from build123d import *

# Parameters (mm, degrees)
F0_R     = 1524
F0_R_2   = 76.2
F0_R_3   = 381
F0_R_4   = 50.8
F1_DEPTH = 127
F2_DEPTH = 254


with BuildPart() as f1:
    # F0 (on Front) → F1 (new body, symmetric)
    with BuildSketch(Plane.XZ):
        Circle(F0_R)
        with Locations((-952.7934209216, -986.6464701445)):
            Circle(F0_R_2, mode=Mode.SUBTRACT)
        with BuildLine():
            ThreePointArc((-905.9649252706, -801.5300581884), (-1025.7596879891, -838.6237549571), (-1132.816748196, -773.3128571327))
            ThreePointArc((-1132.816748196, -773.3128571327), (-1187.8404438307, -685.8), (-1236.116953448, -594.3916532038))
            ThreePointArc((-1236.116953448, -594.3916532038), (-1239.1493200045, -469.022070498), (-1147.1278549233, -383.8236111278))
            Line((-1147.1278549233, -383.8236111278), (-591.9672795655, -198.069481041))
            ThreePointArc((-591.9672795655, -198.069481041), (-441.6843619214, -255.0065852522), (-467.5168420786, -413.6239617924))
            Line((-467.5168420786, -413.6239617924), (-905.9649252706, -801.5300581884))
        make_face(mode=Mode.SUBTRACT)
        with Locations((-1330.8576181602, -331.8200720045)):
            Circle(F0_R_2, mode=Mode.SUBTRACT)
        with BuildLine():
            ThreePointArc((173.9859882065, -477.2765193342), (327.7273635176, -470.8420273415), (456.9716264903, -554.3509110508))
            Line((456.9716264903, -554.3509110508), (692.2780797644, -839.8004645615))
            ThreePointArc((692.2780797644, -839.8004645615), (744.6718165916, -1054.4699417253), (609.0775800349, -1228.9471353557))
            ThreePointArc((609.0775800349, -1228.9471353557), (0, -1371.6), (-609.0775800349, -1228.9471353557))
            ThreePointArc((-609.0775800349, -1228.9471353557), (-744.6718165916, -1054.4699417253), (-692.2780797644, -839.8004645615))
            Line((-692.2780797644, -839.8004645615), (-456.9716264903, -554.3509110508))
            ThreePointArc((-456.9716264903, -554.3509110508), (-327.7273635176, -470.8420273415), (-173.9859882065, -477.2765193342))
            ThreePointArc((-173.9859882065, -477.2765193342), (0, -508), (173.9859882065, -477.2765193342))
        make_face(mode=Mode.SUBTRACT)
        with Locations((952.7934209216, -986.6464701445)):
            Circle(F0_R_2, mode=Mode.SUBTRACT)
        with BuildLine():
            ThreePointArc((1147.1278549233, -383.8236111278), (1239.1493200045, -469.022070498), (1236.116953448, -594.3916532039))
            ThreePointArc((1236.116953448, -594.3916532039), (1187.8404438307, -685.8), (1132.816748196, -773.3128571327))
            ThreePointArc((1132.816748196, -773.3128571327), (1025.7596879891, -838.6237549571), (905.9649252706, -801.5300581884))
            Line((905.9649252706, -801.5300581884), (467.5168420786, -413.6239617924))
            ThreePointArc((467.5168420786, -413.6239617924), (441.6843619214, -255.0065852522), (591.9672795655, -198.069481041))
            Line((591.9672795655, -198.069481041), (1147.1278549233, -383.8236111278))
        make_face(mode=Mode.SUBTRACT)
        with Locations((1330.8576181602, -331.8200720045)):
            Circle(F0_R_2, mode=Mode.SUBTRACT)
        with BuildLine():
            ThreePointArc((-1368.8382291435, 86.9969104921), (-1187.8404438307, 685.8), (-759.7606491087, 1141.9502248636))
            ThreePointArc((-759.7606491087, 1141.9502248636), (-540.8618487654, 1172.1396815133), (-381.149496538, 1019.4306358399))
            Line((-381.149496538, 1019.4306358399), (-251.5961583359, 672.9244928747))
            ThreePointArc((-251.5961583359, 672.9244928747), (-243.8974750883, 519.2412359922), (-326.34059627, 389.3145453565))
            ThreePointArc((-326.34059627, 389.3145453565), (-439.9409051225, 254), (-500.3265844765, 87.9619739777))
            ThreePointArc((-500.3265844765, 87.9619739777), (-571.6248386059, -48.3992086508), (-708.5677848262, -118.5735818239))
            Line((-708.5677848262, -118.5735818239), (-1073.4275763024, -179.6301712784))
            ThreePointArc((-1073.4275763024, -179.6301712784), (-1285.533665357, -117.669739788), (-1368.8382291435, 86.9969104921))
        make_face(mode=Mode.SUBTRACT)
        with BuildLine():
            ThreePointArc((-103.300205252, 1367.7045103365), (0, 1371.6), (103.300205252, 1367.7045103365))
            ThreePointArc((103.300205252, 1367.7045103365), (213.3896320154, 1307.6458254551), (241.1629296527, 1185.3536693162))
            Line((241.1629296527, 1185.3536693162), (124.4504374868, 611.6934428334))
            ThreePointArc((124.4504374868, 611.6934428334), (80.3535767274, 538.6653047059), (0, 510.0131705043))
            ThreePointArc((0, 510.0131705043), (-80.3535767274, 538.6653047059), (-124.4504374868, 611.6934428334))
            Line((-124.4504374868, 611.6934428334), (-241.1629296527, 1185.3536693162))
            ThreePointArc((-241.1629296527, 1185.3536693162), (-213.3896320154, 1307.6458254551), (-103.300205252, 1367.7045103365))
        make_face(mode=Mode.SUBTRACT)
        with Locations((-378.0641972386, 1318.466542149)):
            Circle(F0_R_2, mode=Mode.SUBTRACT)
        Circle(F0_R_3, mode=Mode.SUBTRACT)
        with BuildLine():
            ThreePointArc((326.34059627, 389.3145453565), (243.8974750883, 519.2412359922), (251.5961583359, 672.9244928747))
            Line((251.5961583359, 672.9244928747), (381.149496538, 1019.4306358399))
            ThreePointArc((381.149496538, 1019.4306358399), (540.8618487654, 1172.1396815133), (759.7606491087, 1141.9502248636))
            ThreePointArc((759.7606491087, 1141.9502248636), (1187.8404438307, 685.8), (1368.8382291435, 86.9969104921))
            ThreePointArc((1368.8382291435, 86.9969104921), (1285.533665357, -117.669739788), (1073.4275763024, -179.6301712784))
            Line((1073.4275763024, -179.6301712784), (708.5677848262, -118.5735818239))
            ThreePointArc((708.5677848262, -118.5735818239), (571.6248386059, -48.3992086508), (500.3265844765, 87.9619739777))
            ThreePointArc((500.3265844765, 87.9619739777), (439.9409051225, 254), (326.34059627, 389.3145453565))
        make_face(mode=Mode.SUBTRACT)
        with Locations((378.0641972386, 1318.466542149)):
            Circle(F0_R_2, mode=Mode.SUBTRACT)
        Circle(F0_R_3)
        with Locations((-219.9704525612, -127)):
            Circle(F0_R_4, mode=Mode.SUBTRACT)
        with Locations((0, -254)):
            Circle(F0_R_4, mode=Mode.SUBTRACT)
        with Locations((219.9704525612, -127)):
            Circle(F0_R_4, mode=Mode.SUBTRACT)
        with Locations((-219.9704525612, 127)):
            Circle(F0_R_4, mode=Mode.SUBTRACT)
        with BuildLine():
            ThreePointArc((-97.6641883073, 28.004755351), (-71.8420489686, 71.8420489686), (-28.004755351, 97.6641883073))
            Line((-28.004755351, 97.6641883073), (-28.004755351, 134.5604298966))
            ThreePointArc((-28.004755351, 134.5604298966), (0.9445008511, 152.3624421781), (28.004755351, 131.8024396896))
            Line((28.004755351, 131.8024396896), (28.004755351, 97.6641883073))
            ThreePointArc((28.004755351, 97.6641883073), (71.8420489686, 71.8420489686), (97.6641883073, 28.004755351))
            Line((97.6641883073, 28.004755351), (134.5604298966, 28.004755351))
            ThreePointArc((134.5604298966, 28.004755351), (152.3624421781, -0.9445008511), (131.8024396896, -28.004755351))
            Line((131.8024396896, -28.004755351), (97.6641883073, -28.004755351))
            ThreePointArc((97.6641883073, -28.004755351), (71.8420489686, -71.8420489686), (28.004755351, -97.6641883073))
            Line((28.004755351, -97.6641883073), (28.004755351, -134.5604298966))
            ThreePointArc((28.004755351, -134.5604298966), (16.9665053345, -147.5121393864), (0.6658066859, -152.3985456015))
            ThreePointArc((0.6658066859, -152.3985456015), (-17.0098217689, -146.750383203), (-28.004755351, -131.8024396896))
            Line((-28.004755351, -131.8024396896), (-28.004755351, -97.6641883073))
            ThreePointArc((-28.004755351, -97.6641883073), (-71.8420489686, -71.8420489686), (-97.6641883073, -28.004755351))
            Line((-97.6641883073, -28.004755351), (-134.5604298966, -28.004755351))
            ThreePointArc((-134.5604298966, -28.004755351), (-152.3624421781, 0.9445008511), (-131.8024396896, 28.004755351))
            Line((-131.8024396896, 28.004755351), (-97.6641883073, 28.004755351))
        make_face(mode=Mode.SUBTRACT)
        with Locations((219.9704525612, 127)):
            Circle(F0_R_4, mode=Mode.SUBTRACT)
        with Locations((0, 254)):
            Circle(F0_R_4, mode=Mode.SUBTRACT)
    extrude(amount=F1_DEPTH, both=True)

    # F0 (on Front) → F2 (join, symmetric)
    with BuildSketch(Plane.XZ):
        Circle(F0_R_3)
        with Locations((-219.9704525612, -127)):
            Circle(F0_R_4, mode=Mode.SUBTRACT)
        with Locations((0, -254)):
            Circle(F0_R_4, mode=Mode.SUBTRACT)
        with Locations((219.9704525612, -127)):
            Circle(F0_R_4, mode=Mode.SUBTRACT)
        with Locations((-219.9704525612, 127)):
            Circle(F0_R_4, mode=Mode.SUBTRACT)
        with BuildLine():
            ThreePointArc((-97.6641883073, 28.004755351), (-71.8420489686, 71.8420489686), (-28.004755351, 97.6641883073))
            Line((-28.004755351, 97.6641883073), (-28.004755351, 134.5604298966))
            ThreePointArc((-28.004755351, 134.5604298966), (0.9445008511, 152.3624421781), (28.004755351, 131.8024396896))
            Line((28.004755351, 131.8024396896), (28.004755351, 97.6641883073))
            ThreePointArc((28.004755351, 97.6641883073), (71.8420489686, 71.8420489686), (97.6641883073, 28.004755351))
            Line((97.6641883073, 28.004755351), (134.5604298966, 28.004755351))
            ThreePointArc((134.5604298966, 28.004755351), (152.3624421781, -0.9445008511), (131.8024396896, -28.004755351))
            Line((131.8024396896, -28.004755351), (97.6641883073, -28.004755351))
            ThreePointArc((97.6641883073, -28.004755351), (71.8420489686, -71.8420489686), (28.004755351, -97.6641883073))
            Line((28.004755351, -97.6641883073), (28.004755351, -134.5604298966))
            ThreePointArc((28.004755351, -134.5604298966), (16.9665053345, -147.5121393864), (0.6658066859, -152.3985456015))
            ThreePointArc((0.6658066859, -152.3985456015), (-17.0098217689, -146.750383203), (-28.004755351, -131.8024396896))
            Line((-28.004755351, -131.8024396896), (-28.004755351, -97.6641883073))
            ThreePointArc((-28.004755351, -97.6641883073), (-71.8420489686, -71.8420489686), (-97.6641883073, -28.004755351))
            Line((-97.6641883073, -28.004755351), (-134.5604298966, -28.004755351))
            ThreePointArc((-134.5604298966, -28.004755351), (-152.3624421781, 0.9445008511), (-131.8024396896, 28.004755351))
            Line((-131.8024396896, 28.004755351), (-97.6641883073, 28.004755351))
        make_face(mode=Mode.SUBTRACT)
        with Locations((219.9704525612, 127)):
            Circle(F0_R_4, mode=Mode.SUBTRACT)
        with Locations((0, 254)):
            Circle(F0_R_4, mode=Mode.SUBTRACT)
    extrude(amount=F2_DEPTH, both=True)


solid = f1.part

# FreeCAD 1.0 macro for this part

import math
import FreeCAD as App
import Part
import Sketcher
from FreeCAD import Vector
Q = App.Units.Quantity

doc = App.newDocument("Part")
body = doc.addObject("PartDesign::Body", "Body")

sketch1 = body.newObject("Sketcher::SketchObject", "Sketch")
sketch1.AttachmentSupport = (doc.getObject("XZ_Plane"), [""])
sketch1.MapMode = "FlatFace"
sketch1.addGeometry(Part.Circle(Vector(0, 0, 0), Vector(0, 0, 1), 1524), False)
sketch1.addGeometry(Part.Circle(Vector(-952.793421, -986.64647, 0), Vector(0, 0, 1), 76.2), False)
sketch1.addGeometry(Part.ArcOfCircle(Part.Circle(Vector(0, 0, 0), Vector(0, 0, 1), 508), math.radians(-110.028779), math.radians(-69.971221)), False)
sketch1.addGeometry(Part.ArcOfCircle(Part.Circle(Vector(260.978982, -715.914779, 0), Vector(0, 0, 1), 254), math.radians(39.5), math.radians(110.028779)), False)
sketch1.addGeometry(Part.LineSegment(Vector(456.971626, -554.350911, 0), Vector(692.27808, -839.800465, 0)), False)
sketch1.addGeometry(Part.ArcOfCircle(Part.Circle(Vector(496.285436, -1001.364333, 0), Vector(0, 0, 1), 254), math.radians(-63.636559), math.radians(39.5)), False)
sketch1.addGeometry(Part.ArcOfCircle(Part.Circle(Vector(0, 0, 0), Vector(0, 0, 1), 1371.6), math.radians(-116.363441), math.radians(-63.636559)), False)
sketch1.addGeometry(Part.ArcOfCircle(Part.Circle(Vector(-496.285436, -1001.364333, 0), Vector(0, 0, 1), 254), math.radians(140.5), math.radians(243.636559)), False)
sketch1.addGeometry(Part.LineSegment(Vector(-692.27808, -839.800465, 0), Vector(-456.971626, -554.350911, 0)), False)
sketch1.addGeometry(Part.ArcOfCircle(Part.Circle(Vector(-260.978982, -715.914779, 0), Vector(0, 0, 1), 254), math.radians(69.971221), math.radians(140.5)), False)
sketch1.addGeometry(Part.LineSegment(Vector(-467.516842, -413.623962, 0), Vector(-905.964925, -801.530058, 0)), False)
sketch1.addGeometry(Part.ArcOfCircle(Part.Circle(Vector(-1006.948221, -687.389206, 0), Vector(0, 0, 1), 152.4), math.radians(-145.680756), math.radians(-48.5)), False)
sketch1.addGeometry(Part.ArcOfCircle(Part.Circle(Vector(0, 0, 0), Vector(0, 0, 1), 1371.6), math.radians(-154.319244), math.radians(-145.680756)), False)
sketch1.addGeometry(Part.ArcOfCircle(Part.Circle(Vector(-1098.770625, -528.348136, 0), Vector(0, 0, 1), 152.4), math.radians(108.5), math.radians(205.680756)), False)
sketch1.addGeometry(Part.LineSegment(Vector(-1147.127855, -383.823611, 0), Vector(-591.96728, -198.069481, 0)), False)
sketch1.addGeometry(Part.ArcOfCircle(Part.Circle(Vector(-551.669588, -318.506585, 0), Vector(0, 0, 1), 127), math.radians(-48.5), math.radians(108.5)), False)
sketch1.addGeometry(Part.Circle(Vector(-1330.857618, -331.820072, 0), Vector(0, 0, 1), 76.2), False)
sketch1.addGeometry(Part.Circle(Vector(0, -254, 0), Vector(0, 0, 1), 50.8), False)
sketch1.addGeometry(Part.Circle(Vector(-219.970453, -127, 0), Vector(0, 0, 1), 50.8), False)
sketch1.addGeometry(Part.LineSegment(Vector(-131.80244, 28.004755, 0), Vector(-97.664188, 28.004755, 0)), False)
sketch1.addGeometry(Part.ArcOfCircle(Part.Circle(Vector(0, 0, 0), Vector(0, 0, 1), 101.6), math.radians(106), math.radians(164)), False)
sketch1.addGeometry(Part.LineSegment(Vector(-28.004755, 97.664188, 0), Vector(-28.004755, 134.56043, 0)), False)
sketch1.addGeometry(Part.ArcOfCircle(Part.Circle(Vector(-0.534433, 122.328113, 0), Vector(0, 0, 1), 30.070719), math.radians(18.364929), math.radians(155.996969)), False)
sketch1.addGeometry(Part.LineSegment(Vector(28.004755, 131.80244, 0), Vector(28.004755, 97.664188, 0)), False)
sketch1.addGeometry(Part.ArcOfCircle(Part.Circle(Vector(0, 0, 0), Vector(0, 0, 1), 101.6), math.radians(16), math.radians(74)), False)
sketch1.addGeometry(Part.LineSegment(Vector(97.664188, 28.004755, 0), Vector(134.56043, 28.004755, 0)), False)
sketch1.addGeometry(Part.ArcOfCircle(Part.Circle(Vector(122.328113, 0.534433, 0), Vector(0, 0, 1), 30.070719), math.radians(-71.635071), math.radians(65.996969)), False)
sketch1.addGeometry(Part.LineSegment(Vector(131.80244, -28.004755, 0), Vector(97.664188, -28.004755, 0)), False)
sketch1.addGeometry(Part.ArcOfCircle(Part.Circle(Vector(0, 0, 0), Vector(0, 0, 1), 101.6), math.radians(-74), math.radians(-16)), False)
sketch1.addGeometry(Part.LineSegment(Vector(28.004755, -97.664188, 0), Vector(28.004755, -134.56043, 0)), False)
sketch1.addGeometry(Part.ArcOfCircle(Part.Circle(Vector(0.534433, -122.328113, 0), Vector(0, 0, 1), 30.070719), math.radians(-161.635071), math.radians(-24.003031)), False)
sketch1.addGeometry(Part.LineSegment(Vector(-28.004755, -131.80244, 0), Vector(-28.004755, -97.664188, 0)), False)
sketch1.addGeometry(Part.ArcOfCircle(Part.Circle(Vector(0, 0, 0), Vector(0, 0, 1), 101.6), math.radians(-164), math.radians(-106)), False)
sketch1.addGeometry(Part.LineSegment(Vector(-97.664188, -28.004755, 0), Vector(-134.56043, -28.004755, 0)), False)
sketch1.addGeometry(Part.ArcOfCircle(Part.Circle(Vector(-122.328113, -0.534433, 0), Vector(0, 0, 1), 30.070719), math.radians(108.364929), math.radians(245.996969)), False)
sketch1.addGeometry(Part.Circle(Vector(952.793421, -986.64647, 0), Vector(0, 0, 1), 76.2), False)
sketch1.addGeometry(Part.Circle(Vector(219.970453, -127, 0), Vector(0, 0, 1), 50.8), False)
sketch1.addGeometry(Part.LineSegment(Vector(591.96728, -198.069481, 0), Vector(1147.127855, -383.823611, 0)), False)
sketch1.addGeometry(Part.ArcOfCircle(Part.Circle(Vector(1098.770625, -528.348136, 0), Vector(0, 0, 1), 152.4), math.radians(-25.680756), math.radians(71.5)), False)
sketch1.addGeometry(Part.ArcOfCircle(Part.Circle(Vector(0, 0, 0), Vector(0, 0, 1), 1371.6), math.radians(-34.319244), math.radians(-25.680756)), False)
sketch1.addGeometry(Part.ArcOfCircle(Part.Circle(Vector(1006.948221, -687.389206, 0), Vector(0, 0, 1), 152.4), math.radians(-131.5), math.radians(-34.319244)), False)
sketch1.addGeometry(Part.LineSegment(Vector(905.964925, -801.530058, 0), Vector(467.516842, -413.623962, 0)), False)
sketch1.addGeometry(Part.ArcOfCircle(Part.Circle(Vector(551.669588, -318.506585, 0), Vector(0, 0, 1), 127), math.radians(71.5), math.radians(228.5)), False)
sketch1.addGeometry(Part.Circle(Vector(1330.857618, -331.820072, 0), Vector(0, 0, 1), 76.2), False)
sketch1.addGeometry(Part.ArcOfCircle(Part.Circle(Vector(-1115.349668, 70.886372, 0), Vector(0, 0, 1), 254), math.radians(176.363441), math.radians(279.5)), False)
sketch1.addGeometry(Part.ArcOfCircle(Part.Circle(Vector(0, 0, 0), Vector(0, 0, 1), 1371.6), math.radians(123.636559), math.radians(176.363441)), False)
sketch1.addGeometry(Part.ArcOfCircle(Part.Circle(Vector(-619.064233, 930.477961, 0), Vector(0, 0, 1), 254), math.radians(20.5), math.radians(123.636559)), False)
sketch1.addGeometry(Part.LineSegment(Vector(-381.149497, 1019.430636, 0), Vector(-251.596158, 672.924493, 0)), False)
sketch1.addGeometry(Part.ArcOfCircle(Part.Circle(Vector(-489.510894, 583.971818, 0), Vector(0, 0, 1), 254), math.radians(-50.028779), math.radians(20.5)), False)
sketch1.addGeometry(Part.ArcOfCircle(Part.Circle(Vector(0, 0, 0), Vector(0, 0, 1), 508), math.radians(129.971221), math.radians(170.028779)), False)
sketch1.addGeometry(Part.ArcOfCircle(Part.Circle(Vector(-750.489877, 131.942961, 0), Vector(0, 0, 1), 254), math.radians(-80.5), math.radians(-9.971221)), False)
sketch1.addGeometry(Part.LineSegment(Vector(-708.567785, -118.573582, 0), Vector(-1073.427576, -179.630171, 0)), False)
sketch1.addGeometry(Part.Circle(Vector(-219.970453, 127, 0), Vector(0, 0, 1), 50.8), False)
sketch1.addGeometry(Part.Circle(Vector(0, 254, 0), Vector(0, 0, 1), 50.8), False)
sketch1.addGeometry(Part.ArcOfCircle(Part.Circle(Vector(-91.822405, 1215.737343, 0), Vector(0, 0, 1), 152.4), math.radians(94.319244), math.radians(191.5)), False)
sketch1.addGeometry(Part.ArcOfCircle(Part.Circle(Vector(0, 0, 0), Vector(0, 0, 1), 1371.6), math.radians(85.680756), math.radians(94.319244)), False)
sketch1.addGeometry(Part.ArcOfCircle(Part.Circle(Vector(91.822405, 1215.737343, 0), Vector(0, 0, 1), 152.4), math.radians(-11.5), math.radians(85.680756)), False)
sketch1.addGeometry(Part.LineSegment(Vector(241.16293, 1185.353669, 0), Vector(124.450437, 611.693443, 0)), False)
sketch1.addGeometry(Part.ArcOfCircle(Part.Circle(Vector(0, 637.013171, 0), Vector(0, 0, 1), 127), math.radians(-90), math.radians(-11.5)), False)
sketch1.addGeometry(Part.ArcOfCircle(Part.Circle(Vector(0, 637.013171, 0), Vector(0, 0, 1), 127), math.radians(-168.5), math.radians(-90)), False)
sketch1.addGeometry(Part.LineSegment(Vector(-124.450437, 611.693443, 0), Vector(-241.16293, 1185.353669, 0)), False)
sketch1.addGeometry(Part.Circle(Vector(-378.064197, 1318.466542, 0), Vector(0, 0, 1), 76.2), False)
sketch1.addGeometry(Part.Circle(Vector(219.970453, 127, 0), Vector(0, 0, 1), 50.8), False)
sketch1.addGeometry(Part.ArcOfCircle(Part.Circle(Vector(0, 0, 0), Vector(0, 0, 1), 508), math.radians(9.971221), math.radians(50.028779)), False)
sketch1.addGeometry(Part.ArcOfCircle(Part.Circle(Vector(489.510894, 583.971818, 0), Vector(0, 0, 1), 254), math.radians(159.5), math.radians(230.028779)), False)
sketch1.addGeometry(Part.LineSegment(Vector(251.596158, 672.924493, 0), Vector(381.149497, 1019.430636, 0)), False)
sketch1.addGeometry(Part.ArcOfCircle(Part.Circle(Vector(619.064233, 930.477961, 0), Vector(0, 0, 1), 254), math.radians(56.363441), math.radians(159.5)), False)
sketch1.addGeometry(Part.ArcOfCircle(Part.Circle(Vector(0, 0, 0), Vector(0, 0, 1), 1371.6), math.radians(3.636559), math.radians(56.363441)), False)
sketch1.addGeometry(Part.ArcOfCircle(Part.Circle(Vector(1115.349668, 70.886372, 0), Vector(0, 0, 1), 254), math.radians(-99.5), math.radians(3.636559)), False)
sketch1.addGeometry(Part.LineSegment(Vector(1073.427576, -179.630171, 0), Vector(708.567785, -118.573582, 0)), False)
sketch1.addGeometry(Part.ArcOfCircle(Part.Circle(Vector(750.489877, 131.942961, 0), Vector(0, 0, 1), 254), math.radians(-170.028779), math.radians(-99.5)), False)
sketch1.addGeometry(Part.Circle(Vector(378.064197, 1318.466542, 0), Vector(0, 0, 1), 76.2), False)
sketch1.addConstraint(Sketcher.Constraint("Tangent", 2, 2, 3, 2))
sketch1.addConstraint(Sketcher.Constraint("Tangent", 3, 1, 4, 1))
sketch1.addConstraint(Sketcher.Constraint("Tangent", 4, 2, 5, 2))
sketch1.addConstraint(Sketcher.Constraint("Tangent", 5, 1, 6, 2))
sketch1.addConstraint(Sketcher.Constraint("Tangent", 6, 1, 7, 2))
sketch1.addConstraint(Sketcher.Constraint("Tangent", 7, 1, 8, 1))
sketch1.addConstraint(Sketcher.Constraint("Tangent", 8, 2, 9, 2))
sketch1.addConstraint(Sketcher.Constraint("Tangent", 9, 1, 2, 1))
sketch1.addConstraint(Sketcher.Constraint("Tangent", 10, 2, 11, 2))
sketch1.addConstraint(Sketcher.Constraint("Tangent", 11, 1, 12, 2))
sketch1.addConstraint(Sketcher.Constraint("Tangent", 12, 1, 13, 2))
sketch1.addConstraint(Sketcher.Constraint("Tangent", 13, 1, 14, 1))
sketch1.addConstraint(Sketcher.Constraint("Tangent", 14, 2, 15, 2))
sketch1.addConstraint(Sketcher.Constraint("Tangent", 15, 1, 10, 1))
sketch1.addConstraint(Sketcher.Constraint("Coincident", 19, 2, 20, 2))
sketch1.addConstraint(Sketcher.Constraint("Coincident", 20, 1, 21, 1))
sketch1.addConstraint(Sketcher.Constraint("Coincident", 21, 2, 22, 2))
sketch1.addConstraint(Sketcher.Constraint("Coincident", 22, 1, 23, 1))
sketch1.addConstraint(Sketcher.Constraint("Coincident", 23, 2, 24, 2))
sketch1.addConstraint(Sketcher.Constraint("Coincident", 24, 1, 25, 1))
sketch1.addConstraint(Sketcher.Constraint("Coincident", 25, 2, 26, 2))
sketch1.addConstraint(Sketcher.Constraint("Coincident", 26, 1, 27, 1))
sketch1.addConstraint(Sketcher.Constraint("Coincident", 27, 2, 28, 2))
sketch1.addConstraint(Sketcher.Constraint("Coincident", 28, 1, 29, 1))
sketch1.addConstraint(Sketcher.Constraint("Coincident", 29, 2, 30, 2))
sketch1.addConstraint(Sketcher.Constraint("Coincident", 30, 1, 31, 1))
sketch1.addConstraint(Sketcher.Constraint("Coincident", 31, 2, 32, 2))
sketch1.addConstraint(Sketcher.Constraint("Coincident", 32, 1, 33, 1))
sketch1.addConstraint(Sketcher.Constraint("Coincident", 33, 2, 34, 2))
sketch1.addConstraint(Sketcher.Constraint("Coincident", 34, 1, 19, 1))
sketch1.addConstraint(Sketcher.Constraint("Tangent", 37, 2, 38, 2))
sketch1.addConstraint(Sketcher.Constraint("Tangent", 38, 1, 39, 2))
sketch1.addConstraint(Sketcher.Constraint("Tangent", 39, 1, 40, 2))
sketch1.addConstraint(Sketcher.Constraint("Tangent", 40, 1, 41, 1))
sketch1.addConstraint(Sketcher.Constraint("Tangent", 41, 2, 42, 2))
sketch1.addConstraint(Sketcher.Constraint("Tangent", 42, 1, 37, 1))
sketch1.addConstraint(Sketcher.Constraint("Tangent", 44, 1, 45, 2))
sketch1.addConstraint(Sketcher.Constraint("Tangent", 45, 1, 46, 2))
sketch1.addConstraint(Sketcher.Constraint("Tangent", 46, 1, 47, 1))
sketch1.addConstraint(Sketcher.Constraint("Tangent", 47, 2, 48, 2))
sketch1.addConstraint(Sketcher.Constraint("Tangent", 48, 1, 49, 1))
sketch1.addConstraint(Sketcher.Constraint("Tangent", 49, 2, 50, 2))
sketch1.addConstraint(Sketcher.Constraint("Tangent", 50, 1, 51, 1))
sketch1.addConstraint(Sketcher.Constraint("Tangent", 51, 2, 44, 2))
sketch1.addConstraint(Sketcher.Constraint("Tangent", 54, 1, 55, 2))
sketch1.addConstraint(Sketcher.Constraint("Tangent", 55, 1, 56, 2))
sketch1.addConstraint(Sketcher.Constraint("Tangent", 56, 1, 57, 1))
sketch1.addConstraint(Sketcher.Constraint("Tangent", 57, 2, 58, 2))
sketch1.addConstraint(Sketcher.Constraint("Tangent", 58, 1, 59, 2))
sketch1.addConstraint(Sketcher.Constraint("Tangent", 59, 1, 60, 1))
sketch1.addConstraint(Sketcher.Constraint("Tangent", 60, 2, 54, 2))
sketch1.addConstraint(Sketcher.Constraint("Tangent", 63, 2, 64, 2))
sketch1.addConstraint(Sketcher.Constraint("Tangent", 64, 1, 65, 1))
sketch1.addConstraint(Sketcher.Constraint("Tangent", 65, 2, 66, 2))
sketch1.addConstraint(Sketcher.Constraint("Tangent", 66, 1, 67, 2))
sketch1.addConstraint(Sketcher.Constraint("Tangent", 67, 1, 68, 2))
sketch1.addConstraint(Sketcher.Constraint("Tangent", 68, 1, 69, 1))
sketch1.addConstraint(Sketcher.Constraint("Tangent", 69, 2, 70, 2))
sketch1.addConstraint(Sketcher.Constraint("Tangent", 70, 1, 63, 1))
sketch1.addConstraint(Sketcher.Constraint("Horizontal", 19))
sketch1.addConstraint(Sketcher.Constraint("Vertical", 21))
sketch1.addConstraint(Sketcher.Constraint("Vertical", 23))
sketch1.addConstraint(Sketcher.Constraint("Horizontal", 25))
sketch1.addConstraint(Sketcher.Constraint("Horizontal", 27))
sketch1.addConstraint(Sketcher.Constraint("Vertical", 29))
sketch1.addConstraint(Sketcher.Constraint("Vertical", 31))
sketch1.addConstraint(Sketcher.Constraint("Horizontal", 33))
sketch1.addConstraint(Sketcher.Constraint("Coincident", 0, 3, -1, 1))
sketch1.addConstraint(Sketcher.Constraint("Coincident", 2, 3, -1, 1))
sketch1.addConstraint(Sketcher.Constraint("Coincident", 6, 3, -1, 1))
sketch1.addConstraint(Sketcher.Constraint("Coincident", 12, 3, -1, 1))
sketch1.addConstraint(Sketcher.Constraint("Coincident", 20, 3, -1, 1))
sketch1.addConstraint(Sketcher.Constraint("Coincident", 24, 3, -1, 1))
sketch1.addConstraint(Sketcher.Constraint("Coincident", 28, 3, -1, 1))
sketch1.addConstraint(Sketcher.Constraint("Coincident", 32, 3, -1, 1))
sketch1.addConstraint(Sketcher.Constraint("Coincident", 39, 3, -1, 1))
sketch1.addConstraint(Sketcher.Constraint("Coincident", 45, 3, -1, 1))
sketch1.addConstraint(Sketcher.Constraint("Coincident", 49, 3, -1, 1))
sketch1.addConstraint(Sketcher.Constraint("Coincident", 55, 3, -1, 1))
sketch1.addConstraint(Sketcher.Constraint("Coincident", 63, 3, -1, 1))
sketch1.addConstraint(Sketcher.Constraint("Coincident", 67, 3, -1, 1))
sketch1.addConstraint(Sketcher.Constraint("Equal", 3, 5))
sketch1.addConstraint(Sketcher.Constraint("Equal", 5, 7))
sketch1.addConstraint(Sketcher.Constraint("Equal", 7, 9))
sketch1.addConstraint(Sketcher.Constraint("Equal", 6, 12))
sketch1.addConstraint(Sketcher.Constraint("Equal", 11, 13))
sketch1.addConstraint(Sketcher.Constraint("Equal", 1, 16))
sketch1.addConstraint(Sketcher.Constraint("Equal", 17, 18))
sketch1.addConstraint(Sketcher.Constraint("Equal", 20, 24))
sketch1.addConstraint(Sketcher.Constraint("Equal", 22, 26))
sketch1.addConstraint(Sketcher.Constraint("Equal", 24, 28))
sketch1.addConstraint(Sketcher.Constraint("Equal", 26, 30))
sketch1.addConstraint(Sketcher.Constraint("Equal", 28, 32))
sketch1.addConstraint(Sketcher.Constraint("Equal", 30, 34))
sketch1.addConstraint(Sketcher.Constraint("Equal", 16, 35))
sketch1.addConstraint(Sketcher.Constraint("Equal", 18, 36))
sketch1.addConstraint(Sketcher.Constraint("Equal", 13, 38))
sketch1.addConstraint(Sketcher.Constraint("Equal", 12, 39))
sketch1.addConstraint(Sketcher.Constraint("Equal", 38, 40))
sketch1.addConstraint(Sketcher.Constraint("Equal", 15, 42))
sketch1.addConstraint(Sketcher.Constraint("Equal", 35, 43))
sketch1.addConstraint(Sketcher.Constraint("Equal", 9, 44))
sketch1.addConstraint(Sketcher.Constraint("Equal", 39, 45))
sketch1.addConstraint(Sketcher.Constraint("Equal", 44, 46))
sketch1.addConstraint(Sketcher.Constraint("Equal", 46, 48))
sketch1.addConstraint(Sketcher.Constraint("Equal", 2, 49))
sketch1.addConstraint(Sketcher.Constraint("Equal", 48, 50))
sketch1.addConstraint(Sketcher.Constraint("Equal", 36, 52))
sketch1.addConstraint(Sketcher.Constraint("Equal", 52, 53))
sketch1.addConstraint(Sketcher.Constraint("Equal", 40, 54))
sketch1.addConstraint(Sketcher.Constraint("Equal", 45, 55))
sketch1.addConstraint(Sketcher.Constraint("Equal", 54, 56))
sketch1.addConstraint(Sketcher.Constraint("Equal", 42, 58))
sketch1.addConstraint(Sketcher.Constraint("Equal", 58, 59))
sketch1.addConstraint(Sketcher.Constraint("Equal", 43, 61))
sketch1.addConstraint(Sketcher.Constraint("Equal", 53, 62))
sketch1.addConstraint(Sketcher.Constraint("Equal", 49, 63))
sketch1.addConstraint(Sketcher.Constraint("Equal", 50, 64))
sketch1.addConstraint(Sketcher.Constraint("Equal", 64, 66))
sketch1.addConstraint(Sketcher.Constraint("Equal", 55, 67))
sketch1.addConstraint(Sketcher.Constraint("Equal", 66, 68))
sketch1.addConstraint(Sketcher.Constraint("Equal", 68, 70))
sketch1.addConstraint(Sketcher.Constraint("Equal", 61, 71))
sketch1.addConstraint(Sketcher.Constraint("Symmetric", 22, 3, 30, 3, -1, 1))
sketch1.addConstraint(Sketcher.Constraint("Symmetric", 26, 3, 34, 3, -1, 1))
sketch1.addConstraint(Sketcher.Constraint("Symmetric", 36, 3, 52, 3, -1, 1))
sketch1.addConstraint(Sketcher.Constraint("Symmetric", 17, 3, 53, 3, -1, 1))
sketch1.addConstraint(Sketcher.Constraint("Symmetric", 18, 3, 62, 3, -1, 1))
sketch1.addConstraint(Sketcher.Constraint("Symmetric", 1, 3, 35, 3, -2))
sketch1.addConstraint(Sketcher.Constraint("Symmetric", 18, 3, 36, 3, -2))
sketch1.addConstraint(Sketcher.Constraint("Symmetric", 15, 3, 42, 3, -2))
sketch1.addConstraint(Sketcher.Constraint("Symmetric", 16, 3, 43, 3, -2))
sketch1.addConstraint(Sketcher.Constraint("Symmetric", 61, 3, 71, 3, -2))
sketch1.addConstraint(Sketcher.Constraint("Symmetric", 4, 2, 7, 1, -2))
sketch1.addConstraint(Sketcher.Constraint("Symmetric", 47, 2, 64, 1, -2))
sketch1.addConstraint(Sketcher.Constraint("Symmetric", 51, 2, 68, 1, -2))
sketch1.addConstraint(Sketcher.Constraint("PointOnObject", 17, 3, -2))
sketch1.addConstraint(Sketcher.Constraint("PointOnObject", 58, 3, -2))
sketch1.addConstraint(Sketcher.Constraint("PointOnObject", 58, 1, -2))
sketch1.addConstraint(Sketcher.Constraint("Horizontal", 13, 3, 38, 3))
sketch1.addConstraint(Sketcher.Constraint("Horizontal", 11, 3, 40, 3))
sketch1.addConstraint(Sketcher.Constraint("Horizontal", 54, 3, 56, 3))
sketch1.addConstraint(Sketcher.Constraint("Horizontal", 20, 1, 23, 2))
sketch1.addConstraint(Sketcher.Constraint("Horizontal", 19, 2, 24, 1))
sketch1.addConstraint(Sketcher.Constraint("Horizontal", 28, 1, 31, 2))
sketch1.addConstraint(Sketcher.Constraint("Horizontal", 27, 2, 32, 1))
sketch1.addConstraint(Sketcher.Constraint("Vertical", 24, 1, 27, 2))
sketch1.addConstraint(Sketcher.Constraint("Vertical", 23, 2, 28, 1))
sketch1.addConstraint(Sketcher.Constraint("Equal", 33, 21))
sketch1.addConstraint(Sketcher.Constraint("Equal", 27, 23))
sketch1.addConstraint(Sketcher.Constraint("Equal", 10, 14))
sketch1.addConstraint(Sketcher.Constraint("Equal", 8, 47))
sketch1.addConstraint(Sketcher.Constraint("Equal", 47, 51))
sketch1.addConstraint(Sketcher.Constraint("Equal", 41, 57))
sketch1.addConstraint(Sketcher.Constraint("Diameter", 0, Q("120 in")))
sketch1.addConstraint(Sketcher.Constraint("Diameter", 1, Q("6 in")))
sketch1.addConstraint(Sketcher.Constraint("Diameter", 17, Q("4 in")))
sketch1.addConstraint(Sketcher.Constraint("Radius", 2, Q("20 in")))
sketch1.addConstraint(Sketcher.Constraint("Radius", 3, Q("10 in")))
sketch1.addConstraint(Sketcher.Constraint("Radius", 6, Q("54 in")))
sketch1.addConstraint(Sketcher.Constraint("Radius", 11, Q("6 in")))
sketch1.addConstraint(Sketcher.Constraint("Radius", 15, Q("5 in")))
sketch1.addConstraint(Sketcher.Constraint("Radius", 20, Q("4 in")))
sketch1.addConstraint(Sketcher.Constraint("DistanceY", 17, 3, -1, 1, Q("10 in")))
sketch1.addConstraint(Sketcher.Constraint("DistanceY", 18, 3, -1, 1, Q("5 in")))
sketch1.addConstraint(Sketcher.Constraint("Angle", 4, Q("-50.5 deg")))
sketch1.addConstraint(Sketcher.Constraint("Angle", 10, Q("-138.5 deg")))
sketch1.addConstraint(Sketcher.Constraint("Angle", 14, Q("18.5 deg")))
sketch1.addConstraint(Sketcher.Constraint("Angle", 47, Q("-69.5 deg")))
sketch1.addConstraint(Sketcher.Constraint("Angle", 51, Q("-170.5 deg")))
sketch1.addConstraint(Sketcher.Constraint("Angle", 57, Q("-101.5 deg")))
sketch1.addConstraint(Sketcher.Constraint("Radius", 22, Q("30.070719 mm")))
sketch1.addConstraint(Sketcher.Constraint("DistanceX", 19, 1, 19, 2, Q("34.138251 mm")))
sketch1.addConstraint(Sketcher.Constraint("DistanceX", 25, 1, 25, 2, Q("36.896242 mm")))
sketch1.addConstraint(Sketcher.Constraint("DistanceX", 1, 3, -1, 1, Q("952.793421 mm")))
sketch1.addConstraint(Sketcher.Constraint("DistanceY", 1, 3, -1, 1, Q("986.64647 mm")))
sketch1.addConstraint(Sketcher.Constraint("DistanceY", 3, 3, -1, 1, Q("715.914779 mm")))
sketch1.addConstraint(Sketcher.Constraint("DistanceX", 11, 3, -1, 1, Q("1006.948221 mm")))
sketch1.addConstraint(Sketcher.Constraint("DistanceX", 16, 3, -1, 1, Q("1330.857618 mm")))
sketch1.addConstraint(Sketcher.Constraint("DistanceX", 19, 2, -1, 1, Q("97.664188 mm")))
sketch1.addConstraint(Sketcher.Constraint("DistanceY", -1, 1, 20, 1, Q("97.664188 mm")))
sketch1.addConstraint(Sketcher.Constraint("DistanceY", 16, 3, -1, 1, Q("331.820072 mm")))
sketch1.addConstraint(Sketcher.Constraint("DistanceX", 18, 3, -1, 1, Q("219.970453 mm")))
sketch1.addConstraint(Sketcher.Constraint("DistanceX", 61, 3, -1, 1, Q("378.064197 mm")))
sketch1.addConstraint(Sketcher.Constraint("DistanceY", -1, 1, 61, 3, Q("1318.466542 mm")))
pad1 = body.newObject("PartDesign::Pad", "Pad")
pad1.Profile = sketch1
pad1.Length = Q("10 in")
pad1.Midplane = True

sketch2 = body.newObject("Sketcher::SketchObject", "Sketch001")
sketch2.AttachmentSupport = (doc.getObject("XZ_Plane"), [""])
sketch2.MapMode = "FlatFace"
sketch2.addGeometry(Part.Circle(Vector(0, 0, 0), Vector(0, 0, 1), 381), False)
sketch2.addGeometry(Part.Circle(Vector(0, -254, 0), Vector(0, 0, 1), 50.8), False)
sketch2.addGeometry(Part.Circle(Vector(-219.970453, -127, 0), Vector(0, 0, 1), 50.8), False)
sketch2.addGeometry(Part.Circle(Vector(219.970453, -127, 0), Vector(0, 0, 1), 50.8), False)
sketch2.addGeometry(Part.Circle(Vector(-219.970453, 127, 0), Vector(0, 0, 1), 50.8), False)
sketch2.addGeometry(Part.LineSegment(Vector(-131.80244, 28.004755, 0), Vector(-97.664188, 28.004755, 0)), False)
sketch2.addGeometry(Part.ArcOfCircle(Part.Circle(Vector(0, 0, 0), Vector(0, 0, 1), 101.6), math.radians(106), math.radians(164)), False)
sketch2.addGeometry(Part.LineSegment(Vector(-28.004755, 97.664188, 0), Vector(-28.004755, 134.56043, 0)), False)
sketch2.addGeometry(Part.ArcOfCircle(Part.Circle(Vector(-0.534433, 122.328113, 0), Vector(0, 0, 1), 30.070719), math.radians(18.364929), math.radians(155.996969)), False)
sketch2.addGeometry(Part.LineSegment(Vector(28.004755, 131.80244, 0), Vector(28.004755, 97.664188, 0)), False)
sketch2.addGeometry(Part.ArcOfCircle(Part.Circle(Vector(0, 0, 0), Vector(0, 0, 1), 101.6), math.radians(16), math.radians(74)), False)
sketch2.addGeometry(Part.LineSegment(Vector(97.664188, 28.004755, 0), Vector(134.56043, 28.004755, 0)), False)
sketch2.addGeometry(Part.ArcOfCircle(Part.Circle(Vector(122.328113, 0.534433, 0), Vector(0, 0, 1), 30.070719), math.radians(-71.635071), math.radians(65.996969)), False)
sketch2.addGeometry(Part.LineSegment(Vector(131.80244, -28.004755, 0), Vector(97.664188, -28.004755, 0)), False)
sketch2.addGeometry(Part.ArcOfCircle(Part.Circle(Vector(0, 0, 0), Vector(0, 0, 1), 101.6), math.radians(-74), math.radians(-16)), False)
sketch2.addGeometry(Part.LineSegment(Vector(28.004755, -97.664188, 0), Vector(28.004755, -134.56043, 0)), False)
sketch2.addGeometry(Part.ArcOfCircle(Part.Circle(Vector(0.534433, -122.328113, 0), Vector(0, 0, 1), 30.070719), math.radians(-161.635071), math.radians(-24.003031)), False)
sketch2.addGeometry(Part.LineSegment(Vector(-28.004755, -131.80244, 0), Vector(-28.004755, -97.664188, 0)), False)
sketch2.addGeometry(Part.ArcOfCircle(Part.Circle(Vector(0, 0, 0), Vector(0, 0, 1), 101.6), math.radians(-164), math.radians(-106)), False)
sketch2.addGeometry(Part.LineSegment(Vector(-97.664188, -28.004755, 0), Vector(-134.56043, -28.004755, 0)), False)
sketch2.addGeometry(Part.ArcOfCircle(Part.Circle(Vector(-122.328113, -0.534433, 0), Vector(0, 0, 1), 30.070719), math.radians(108.364929), math.radians(245.996969)), False)
sketch2.addGeometry(Part.Circle(Vector(0, 254, 0), Vector(0, 0, 1), 50.8), False)
sketch2.addGeometry(Part.Circle(Vector(219.970453, 127, 0), Vector(0, 0, 1), 50.8), False)
sketch2.addConstraint(Sketcher.Constraint("Coincident", 5, 2, 6, 2))
sketch2.addConstraint(Sketcher.Constraint("Coincident", 6, 1, 7, 1))
sketch2.addConstraint(Sketcher.Constraint("Coincident", 7, 2, 8, 2))
sketch2.addConstraint(Sketcher.Constraint("Coincident", 8, 1, 9, 1))
sketch2.addConstraint(Sketcher.Constraint("Coincident", 9, 2, 10, 2))
sketch2.addConstraint(Sketcher.Constraint("Coincident", 10, 1, 11, 1))
sketch2.addConstraint(Sketcher.Constraint("Coincident", 11, 2, 12, 2))
sketch2.addConstraint(Sketcher.Constraint("Coincident", 12, 1, 13, 1))
sketch2.addConstraint(Sketcher.Constraint("Coincident", 13, 2, 14, 2))
sketch2.addConstraint(Sketcher.Constraint("Coincident", 14, 1, 15, 1))
sketch2.addConstraint(Sketcher.Constraint("Coincident", 15, 2, 16, 2))
sketch2.addConstraint(Sketcher.Constraint("Coincident", 16, 1, 17, 1))
sketch2.addConstraint(Sketcher.Constraint("Coincident", 17, 2, 18, 2))
sketch2.addConstraint(Sketcher.Constraint("Coincident", 18, 1, 19, 1))
sketch2.addConstraint(Sketcher.Constraint("Coincident", 19, 2, 20, 2))
sketch2.addConstraint(Sketcher.Constraint("Coincident", 20, 1, 5, 1))
sketch2.addConstraint(Sketcher.Constraint("Horizontal", 5))
sketch2.addConstraint(Sketcher.Constraint("Vertical", 7))
sketch2.addConstraint(Sketcher.Constraint("Vertical", 9))
sketch2.addConstraint(Sketcher.Constraint("Horizontal", 11))
sketch2.addConstraint(Sketcher.Constraint("Horizontal", 13))
sketch2.addConstraint(Sketcher.Constraint("Vertical", 15))
sketch2.addConstraint(Sketcher.Constraint("Vertical", 17))
sketch2.addConstraint(Sketcher.Constraint("Horizontal", 19))
sketch2.addConstraint(Sketcher.Constraint("Coincident", 0, 3, -1, 1))
sketch2.addConstraint(Sketcher.Constraint("Coincident", 6, 3, -1, 1))
sketch2.addConstraint(Sketcher.Constraint("Coincident", 10, 3, -1, 1))
sketch2.addConstraint(Sketcher.Constraint("Coincident", 14, 3, -1, 1))
sketch2.addConstraint(Sketcher.Constraint("Coincident", 18, 3, -1, 1))
sketch2.addConstraint(Sketcher.Constraint("Equal", 1, 2))
sketch2.addConstraint(Sketcher.Constraint("Equal", 2, 3))
sketch2.addConstraint(Sketcher.Constraint("Equal", 3, 4))
sketch2.addConstraint(Sketcher.Constraint("Equal", 6, 10))
sketch2.addConstraint(Sketcher.Constraint("Equal", 8, 12))
sketch2.addConstraint(Sketcher.Constraint("Equal", 10, 14))
sketch2.addConstraint(Sketcher.Constraint("Equal", 12, 16))
sketch2.addConstraint(Sketcher.Constraint("Equal", 14, 18))
sketch2.addConstraint(Sketcher.Constraint("Equal", 16, 20))
sketch2.addConstraint(Sketcher.Constraint("Equal", 4, 21))
sketch2.addConstraint(Sketcher.Constraint("Equal", 21, 22))
sketch2.addConstraint(Sketcher.Constraint("Symmetric", 3, 3, 4, 3, -1, 1))
sketch2.addConstraint(Sketcher.Constraint("Symmetric", 8, 3, 16, 3, -1, 1))
sketch2.addConstraint(Sketcher.Constraint("Symmetric", 12, 3, 20, 3, -1, 1))
sketch2.addConstraint(Sketcher.Constraint("Symmetric", 1, 3, 21, 3, -1, 1))
sketch2.addConstraint(Sketcher.Constraint("Symmetric", 2, 3, 22, 3, -1, 1))
sketch2.addConstraint(Sketcher.Constraint("Symmetric", 2, 3, 3, 3, -2))
sketch2.addConstraint(Sketcher.Constraint("PointOnObject", 1, 3, -2))
sketch2.addConstraint(Sketcher.Constraint("Horizontal", 6, 1, 9, 2))
sketch2.addConstraint(Sketcher.Constraint("Horizontal", 5, 2, 10, 1))
sketch2.addConstraint(Sketcher.Constraint("Horizontal", 14, 1, 17, 2))
sketch2.addConstraint(Sketcher.Constraint("Horizontal", 13, 2, 18, 1))
sketch2.addConstraint(Sketcher.Constraint("Vertical", 10, 1, 13, 2))
sketch2.addConstraint(Sketcher.Constraint("Vertical", 9, 2, 14, 1))
sketch2.addConstraint(Sketcher.Constraint("Equal", 19, 7))
sketch2.addConstraint(Sketcher.Constraint("Equal", 13, 9))
sketch2.addConstraint(Sketcher.Constraint("Diameter", 0, Q("30 in")))
sketch2.addConstraint(Sketcher.Constraint("Diameter", 1, Q("4 in")))
sketch2.addConstraint(Sketcher.Constraint("Radius", 6, Q("4 in")))
sketch2.addConstraint(Sketcher.Constraint("DistanceY", 1, 3, -1, 1, Q("10 in")))
sketch2.addConstraint(Sketcher.Constraint("DistanceY", 2, 3, -1, 1, Q("5 in")))
sketch2.addConstraint(Sketcher.Constraint("Radius", 8, Q("30.070719 mm")))
sketch2.addConstraint(Sketcher.Constraint("DistanceX", 5, 1, 5, 2, Q("34.138251 mm")))
sketch2.addConstraint(Sketcher.Constraint("DistanceX", 11, 1, 11, 2, Q("36.896242 mm")))
sketch2.addConstraint(Sketcher.Constraint("DistanceX", 5, 2, -1, 1, Q("97.664188 mm")))
sketch2.addConstraint(Sketcher.Constraint("DistanceY", -1, 1, 6, 1, Q("97.664188 mm")))
sketch2.addConstraint(Sketcher.Constraint("DistanceX", 4, 3, 8, 3, Q("219.436019 mm")))
pad2 = body.newObject("PartDesign::Pad", "Pad001")
pad2.Profile = sketch2
pad2.Length = Q("20 in")
pad2.Midplane = True

doc.recompute()
